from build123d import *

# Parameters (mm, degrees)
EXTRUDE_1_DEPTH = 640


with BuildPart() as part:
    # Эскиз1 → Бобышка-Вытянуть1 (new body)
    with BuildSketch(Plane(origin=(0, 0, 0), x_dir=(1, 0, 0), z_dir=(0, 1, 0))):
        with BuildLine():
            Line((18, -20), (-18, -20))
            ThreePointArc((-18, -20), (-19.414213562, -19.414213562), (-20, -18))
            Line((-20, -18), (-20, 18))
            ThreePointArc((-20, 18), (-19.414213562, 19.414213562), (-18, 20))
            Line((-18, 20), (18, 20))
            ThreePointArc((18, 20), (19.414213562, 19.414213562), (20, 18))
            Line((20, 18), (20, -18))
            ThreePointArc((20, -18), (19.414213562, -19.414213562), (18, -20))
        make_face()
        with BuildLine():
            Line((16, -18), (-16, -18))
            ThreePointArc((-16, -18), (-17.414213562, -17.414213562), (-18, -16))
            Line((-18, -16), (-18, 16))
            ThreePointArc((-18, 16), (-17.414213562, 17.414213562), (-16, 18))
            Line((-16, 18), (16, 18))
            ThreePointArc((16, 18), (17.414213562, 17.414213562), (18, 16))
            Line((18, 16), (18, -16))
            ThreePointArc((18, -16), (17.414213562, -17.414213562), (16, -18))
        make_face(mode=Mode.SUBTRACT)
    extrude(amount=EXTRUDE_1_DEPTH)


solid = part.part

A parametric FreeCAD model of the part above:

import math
import FreeCAD as App
import Part
import Sketcher

V = App.Vector
Q = App.Units.Quantity

doc = App.newDocument("Part")
body = doc.addObject("PartDesign::Body", "Body")

sketch1 = body.newObject("Sketcher::SketchObject", "Sketch")
sketch1.AttachmentSupport = (doc.getObject("XZ_Plane"), [""])
sketch1.MapMode = "FlatFace"
sketch1.addGeometry([
    Part.LineSegment(V(-18, 20, 0), V(18, 20, 0)),
    Part.ArcOfCircle(Part.Circle(V(18, 18, 0), V(0, 0, 1), 2), math.radians(0), math.radians(90)),
    Part.LineSegment(V(20, 18, 0), V(20, -18, 0)),
    Part.ArcOfCircle(Part.Circle(V(18, -18, 0), V(0, 0, 1), 2), math.radians(-90), math.radians(0)),
    Part.LineSegment(V(18, -20, 0), V(-18, -20, 0)),
    Part.ArcOfCircle(Part.Circle(V(-18, -18, 0), V(0, 0, 1), 2), math.radians(-180), math.radians(-90)),
    Part.LineSegment(V(-20, -18, 0), V(-20, 18, 0)),
    Part.ArcOfCircle(Part.Circle(V(-18, 18, 0), V(0, 0, 1), 2), math.radians(90), math.radians(180)),
    Part.LineSegment(V(16, 18, 0), V(-16, 18, 0)),
    Part.ArcOfCircle(Part.Circle(V(-16, 16, 0), V(0, 0, 1), 2), math.radians(90), math.radians(180)),
    Part.LineSegment(V(-18, 16, 0), V(-18, -16, 0)),
    Part.ArcOfCircle(Part.Circle(V(-16, -16, 0), V(0, 0, 1), 2), math.radians(-180), math.radians(-90)),
    Part.LineSegment(V(-16, -18, 0), V(16, -18, 0)),
    Part.ArcOfCircle(Part.Circle(V(16, -16, 0), V(0, 0, 1), 2), math.radians(-90), math.radians(0)),
    Part.LineSegment(V(18, -16, 0), V(18, 16, 0)),
    Part.ArcOfCircle(Part.Circle(V(16, 16, 0), V(0, 0, 1), 2), math.radians(0), math.radians(90)),
], False)
sketch1.addConstraint([
    Sketcher.Constraint("Tangent", 0, 2, 1, 2),
    Sketcher.Constraint("Tangent", 1, 1, 2, 1),
    Sketcher.Constraint("Tangent", 2, 2, 3, 2),
    Sketcher.Constraint("Tangent", 3, 1, 4, 1),
    Sketcher.Constraint("Tangent", 4, 2, 5, 2),
    Sketcher.Constraint("Tangent", 5, 1, 6, 1),
    Sketcher.Constraint("Tangent", 6, 2, 7, 2),
    Sketcher.Constraint("Tangent", 7, 1, 0, 1),
    Sketcher.Constraint("Tangent", 8, 2, 9, 1),
    Sketcher.Constraint("Tangent", 9, 2, 10, 1),
    Sketcher.Constraint("Tangent", 10, 2, 11, 1),
    Sketcher.Constraint("Tangent", 11, 2, 12, 1),
    Sketcher.Constraint("Tangent", 12, 2, 13, 1),
    Sketcher.Constraint("Tangent", 13, 2, 14, 1),
    Sketcher.Constraint("Tangent", 14, 2, 15, 1),
    Sketcher.Constraint("Tangent", 15, 2, 8, 1),
    Sketcher.Constraint("Horizontal", 0),
    Sketcher.Constraint("Vertical", 2),
    Sketcher.Constraint("Horizontal", 4),
    Sketcher.Constraint("Vertical", 6),
    Sketcher.Constraint("Horizontal", 8),
    Sketcher.Constraint("Vertical", 10),
    Sketcher.Constraint("Horizontal", 12),
    Sketcher.Constraint("Vertical", 14),
    Sketcher.Constraint("Equal", 1, 3),
    Sketcher.Constraint("Equal", 3, 5),
    Sketcher.Constraint("Equal", 5, 7),
    Sketcher.Constraint("Equal", 7, 9),
    Sketcher.Constraint("Equal", 9, 11),
    Sketcher.Constraint("Equal", 11, 13),
    Sketcher.Constraint("Equal", 13, 15),
    Sketcher.Constraint("Symmetric", 1, 3, 5, 3, -1, 1),
    Sketcher.Constraint("Symmetric", 9, 3, 13, 3, -1, 1),
    Sketcher.Constraint("Horizontal", 6, 2, 8, 2),
    Sketcher.Constraint("Vertical", 7, 1, 9, 2),
    Sketcher.Constraint("Equal", 4, 2),
    Sketcher.Constraint("Radius", 1, Q("2 mm")),
    Sketcher.Constraint("DistanceX", 0, 1, 0, 2, Q("36 mm")),
])
pad1 = body.newObject("PartDesign::Pad", "Pad")
pad1.Profile = sketch1
pad1.Length = 640
pad1.Reversed = True

doc.recompute()
